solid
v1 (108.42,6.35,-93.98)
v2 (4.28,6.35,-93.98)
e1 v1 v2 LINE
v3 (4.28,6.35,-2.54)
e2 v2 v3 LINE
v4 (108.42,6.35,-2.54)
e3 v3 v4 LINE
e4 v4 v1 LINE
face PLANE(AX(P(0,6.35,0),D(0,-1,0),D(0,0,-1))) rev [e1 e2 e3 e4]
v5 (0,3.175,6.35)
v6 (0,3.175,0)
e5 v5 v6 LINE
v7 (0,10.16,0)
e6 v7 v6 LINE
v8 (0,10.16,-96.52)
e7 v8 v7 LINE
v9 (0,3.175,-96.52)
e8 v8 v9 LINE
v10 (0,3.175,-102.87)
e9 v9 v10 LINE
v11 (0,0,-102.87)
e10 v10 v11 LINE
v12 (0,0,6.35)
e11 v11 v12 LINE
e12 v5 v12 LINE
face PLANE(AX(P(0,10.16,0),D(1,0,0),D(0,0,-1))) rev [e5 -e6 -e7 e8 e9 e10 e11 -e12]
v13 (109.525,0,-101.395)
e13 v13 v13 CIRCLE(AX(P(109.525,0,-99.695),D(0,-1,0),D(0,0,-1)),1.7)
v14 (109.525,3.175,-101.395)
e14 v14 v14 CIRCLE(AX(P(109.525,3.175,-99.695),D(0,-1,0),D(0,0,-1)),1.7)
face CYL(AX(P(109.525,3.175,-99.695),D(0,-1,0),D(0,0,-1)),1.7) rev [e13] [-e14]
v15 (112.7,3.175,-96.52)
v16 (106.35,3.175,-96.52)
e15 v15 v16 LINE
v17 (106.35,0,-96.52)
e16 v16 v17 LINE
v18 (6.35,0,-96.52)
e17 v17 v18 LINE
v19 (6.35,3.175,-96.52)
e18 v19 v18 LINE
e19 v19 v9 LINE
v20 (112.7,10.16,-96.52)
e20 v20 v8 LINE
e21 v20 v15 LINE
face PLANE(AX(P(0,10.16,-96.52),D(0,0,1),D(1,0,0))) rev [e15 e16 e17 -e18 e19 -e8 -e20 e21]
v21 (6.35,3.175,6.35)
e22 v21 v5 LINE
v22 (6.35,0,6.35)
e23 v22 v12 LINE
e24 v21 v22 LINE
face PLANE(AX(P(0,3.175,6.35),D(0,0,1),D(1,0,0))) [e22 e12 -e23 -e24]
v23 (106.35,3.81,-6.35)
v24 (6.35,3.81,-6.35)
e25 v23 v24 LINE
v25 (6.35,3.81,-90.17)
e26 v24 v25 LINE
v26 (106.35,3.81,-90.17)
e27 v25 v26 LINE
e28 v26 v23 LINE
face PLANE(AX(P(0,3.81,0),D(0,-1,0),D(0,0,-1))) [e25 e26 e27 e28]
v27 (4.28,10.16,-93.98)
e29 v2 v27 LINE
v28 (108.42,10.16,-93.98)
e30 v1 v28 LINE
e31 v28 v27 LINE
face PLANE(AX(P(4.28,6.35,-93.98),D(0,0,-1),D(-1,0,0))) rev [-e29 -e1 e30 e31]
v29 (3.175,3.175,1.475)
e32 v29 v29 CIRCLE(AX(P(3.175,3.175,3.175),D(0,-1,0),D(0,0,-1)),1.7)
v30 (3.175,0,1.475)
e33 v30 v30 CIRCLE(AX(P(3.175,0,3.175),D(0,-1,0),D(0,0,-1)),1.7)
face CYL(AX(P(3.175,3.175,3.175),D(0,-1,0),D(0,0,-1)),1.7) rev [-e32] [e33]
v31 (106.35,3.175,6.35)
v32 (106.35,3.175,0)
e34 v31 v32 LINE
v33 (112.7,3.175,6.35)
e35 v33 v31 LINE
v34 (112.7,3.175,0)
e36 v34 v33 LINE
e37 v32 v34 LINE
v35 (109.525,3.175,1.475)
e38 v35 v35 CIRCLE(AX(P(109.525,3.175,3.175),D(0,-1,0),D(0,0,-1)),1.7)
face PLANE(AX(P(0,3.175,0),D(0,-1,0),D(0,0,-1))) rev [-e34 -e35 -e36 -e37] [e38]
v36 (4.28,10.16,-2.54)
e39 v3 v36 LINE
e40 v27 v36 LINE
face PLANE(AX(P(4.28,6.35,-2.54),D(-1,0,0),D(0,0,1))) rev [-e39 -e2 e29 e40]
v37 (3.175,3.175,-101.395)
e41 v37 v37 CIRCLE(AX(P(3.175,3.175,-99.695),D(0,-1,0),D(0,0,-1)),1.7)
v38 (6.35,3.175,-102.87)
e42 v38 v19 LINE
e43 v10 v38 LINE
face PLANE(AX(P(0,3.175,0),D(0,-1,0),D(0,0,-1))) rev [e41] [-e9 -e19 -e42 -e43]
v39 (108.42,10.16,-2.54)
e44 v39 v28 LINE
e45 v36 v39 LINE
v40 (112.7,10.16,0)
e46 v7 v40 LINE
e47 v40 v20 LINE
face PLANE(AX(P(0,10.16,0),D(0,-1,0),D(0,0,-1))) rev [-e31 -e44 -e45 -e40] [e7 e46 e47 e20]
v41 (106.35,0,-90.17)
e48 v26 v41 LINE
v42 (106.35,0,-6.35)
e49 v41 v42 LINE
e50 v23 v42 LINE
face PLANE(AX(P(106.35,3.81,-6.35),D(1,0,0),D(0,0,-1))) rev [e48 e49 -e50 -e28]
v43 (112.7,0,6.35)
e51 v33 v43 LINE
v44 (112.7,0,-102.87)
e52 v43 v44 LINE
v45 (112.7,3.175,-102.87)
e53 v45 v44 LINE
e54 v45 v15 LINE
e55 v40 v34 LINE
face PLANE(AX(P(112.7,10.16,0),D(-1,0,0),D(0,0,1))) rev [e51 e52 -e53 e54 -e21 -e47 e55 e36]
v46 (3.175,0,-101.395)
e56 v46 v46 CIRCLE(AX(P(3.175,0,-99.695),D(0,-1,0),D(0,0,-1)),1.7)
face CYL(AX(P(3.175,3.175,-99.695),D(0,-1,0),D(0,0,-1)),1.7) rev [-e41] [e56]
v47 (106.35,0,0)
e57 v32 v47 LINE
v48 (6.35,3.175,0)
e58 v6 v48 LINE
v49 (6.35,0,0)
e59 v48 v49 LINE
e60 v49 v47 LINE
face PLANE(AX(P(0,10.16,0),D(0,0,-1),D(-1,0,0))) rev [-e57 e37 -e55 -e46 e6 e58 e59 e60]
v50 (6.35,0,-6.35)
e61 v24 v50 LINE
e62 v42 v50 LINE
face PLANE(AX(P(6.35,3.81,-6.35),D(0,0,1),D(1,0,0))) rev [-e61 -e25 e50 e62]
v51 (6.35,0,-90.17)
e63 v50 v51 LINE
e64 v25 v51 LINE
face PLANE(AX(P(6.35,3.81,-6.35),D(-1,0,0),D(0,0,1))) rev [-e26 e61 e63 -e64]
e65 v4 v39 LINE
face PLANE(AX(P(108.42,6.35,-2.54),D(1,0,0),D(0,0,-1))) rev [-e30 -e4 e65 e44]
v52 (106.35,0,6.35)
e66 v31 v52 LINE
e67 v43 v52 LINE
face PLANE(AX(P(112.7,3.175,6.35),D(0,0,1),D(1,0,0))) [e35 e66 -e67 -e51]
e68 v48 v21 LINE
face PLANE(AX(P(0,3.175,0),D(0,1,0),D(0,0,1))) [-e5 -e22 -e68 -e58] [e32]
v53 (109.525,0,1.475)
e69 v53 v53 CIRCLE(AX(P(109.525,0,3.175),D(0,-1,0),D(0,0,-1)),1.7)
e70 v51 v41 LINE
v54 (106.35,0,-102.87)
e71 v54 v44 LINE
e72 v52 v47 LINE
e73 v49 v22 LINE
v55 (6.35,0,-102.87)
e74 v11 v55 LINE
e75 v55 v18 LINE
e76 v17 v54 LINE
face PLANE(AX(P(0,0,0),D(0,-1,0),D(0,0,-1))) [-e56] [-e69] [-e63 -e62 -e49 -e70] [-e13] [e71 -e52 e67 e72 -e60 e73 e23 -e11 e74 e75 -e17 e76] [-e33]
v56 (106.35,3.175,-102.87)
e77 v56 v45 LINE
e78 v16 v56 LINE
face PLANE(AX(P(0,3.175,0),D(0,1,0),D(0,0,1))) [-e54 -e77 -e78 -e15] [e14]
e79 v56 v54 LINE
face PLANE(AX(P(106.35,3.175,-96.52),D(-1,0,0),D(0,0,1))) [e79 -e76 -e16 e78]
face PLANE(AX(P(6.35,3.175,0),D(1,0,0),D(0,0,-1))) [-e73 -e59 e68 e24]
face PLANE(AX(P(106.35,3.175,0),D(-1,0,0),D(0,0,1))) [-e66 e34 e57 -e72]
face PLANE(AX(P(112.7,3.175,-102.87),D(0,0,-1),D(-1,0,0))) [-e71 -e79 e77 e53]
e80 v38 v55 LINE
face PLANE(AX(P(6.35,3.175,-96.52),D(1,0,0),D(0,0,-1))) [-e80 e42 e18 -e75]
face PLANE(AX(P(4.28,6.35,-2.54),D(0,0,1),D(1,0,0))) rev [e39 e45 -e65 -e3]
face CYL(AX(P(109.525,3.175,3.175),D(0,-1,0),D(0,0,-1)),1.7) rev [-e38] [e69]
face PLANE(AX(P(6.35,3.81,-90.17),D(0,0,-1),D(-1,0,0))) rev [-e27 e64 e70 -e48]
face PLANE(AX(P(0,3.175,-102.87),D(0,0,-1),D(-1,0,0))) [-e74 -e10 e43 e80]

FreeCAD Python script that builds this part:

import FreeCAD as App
import Part
import Sketcher

V = App.Vector
Q = App.Units.Quantity


def add_polygon(sketch, points):
    """Adds a closed chain of lines whose ends are joined by coincident constraints."""
    first, n = sketch.GeometryCount, len(points)
    for a, b in zip(points, points[1:] + points[:1]):
        sketch.addGeometry(Part.LineSegment(App.Vector(*a, 0), App.Vector(*b, 0)), False)
    for i in range(n):
        sketch.addConstraint(Sketcher.Constraint("Coincident", first + i, 2, first + (i + 1) % n, 1))

doc = App.newDocument("Part")
body = doc.addObject("PartDesign::Body", "Body")

# Sketch on XZ plane
sketch1 = doc.addObject("Sketcher::SketchObject", "Sketch")
body.addObject(sketch1)
sketch1.AttachmentSupport = (doc.XZ_Plane, [""])
sketch1.MapMode = "FlatFace"
add_polygon(sketch1, [(0, -96.52), (0, 0), (112.7, 0), (112.7, -96.52)])  # lines 0-3
sketch1.addConstraint(Sketcher.Constraint("Vertical", 0))
sketch1.addConstraint(Sketcher.Constraint("Horizontal", 1))
sketch1.addConstraint(Sketcher.Constraint("Vertical", 2))
sketch1.addConstraint(Sketcher.Constraint("Horizontal", 3))
sketch1.addConstraint(Sketcher.Constraint("Coincident", 0, 2, -1, 1))
sketch1.addConstraint(Sketcher.Constraint("DistanceY", 0, 1, 0, 2, Q("3.8 in")))
sketch1.addConstraint(Sketcher.Constraint("DistanceX", 1, 1, 1, 2, Q("112.7 mm")))
pad1 = doc.addObject("PartDesign::Pad", "Pad")
body.addObject(pad1)
pad1.Profile = sketch1
pad1.Length = Q("0.4 in")
pad1.Reversed = True

# Sketch on XZ plane
sketch2 = doc.addObject("Sketcher::SketchObject", "Sketch001")
body.addObject(sketch2)
sketch2.AttachmentSupport = (doc.XZ_Plane, [""])
sketch2.MapMode = "FlatFace"
sketch2.AttachmentOffset = App.Placement(V(0, 0, -0.4 * 25.4), App.Rotation())
add_polygon(sketch2, [(4.28, -93.98), (4.28, -2.54), (108.42, -2.54), (108.42, -93.98)])  # lines 0-3
sketch2.addConstraint(Sketcher.Constraint("Vertical", 0))
sketch2.addConstraint(Sketcher.Constraint("Horizontal", 1))
sketch2.addConstraint(Sketcher.Constraint("Vertical", 2))
sketch2.addConstraint(Sketcher.Constraint("Horizontal", 3))
sketch2.addConstraint(Sketcher.Constraint("DistanceX", 1, 1, 1, 2, Q("4.1 in")))
sketch2.addConstraint(Sketcher.Constraint("DistanceY", 0, 1, 0, 2, Q("3.6 in")))
sketch2.addConstraint(Sketcher.Constraint("DistanceY", 0, 2, -1, 1, Q("0.1 in")))
sketch2.addConstraint(Sketcher.Constraint("DistanceX", -1, 1, 0, 2, Q("4.28 mm")))
pocket1 = doc.addObject("PartDesign::Pocket", "Pocket")
body.addObject(pocket1)
pocket1.Profile = sketch2
pocket1.Length = Q("0.15 in")
pocket1.Reversed = True

# Sketch on XZ plane
sketch3 = doc.addObject("Sketcher::SketchObject", "Sketch002")
body.addObject(sketch3)
sketch3.AttachmentSupport = (doc.XZ_Plane, [""])
sketch3.MapMode = "FlatFace"
add_polygon(sketch3, [(106.35, 6.35), (106.35, 0), (112.7, 0), (112.7, 6.35)])  # lines 0-3
sketch3.addGeometry(Part.Circle(V(109.525, 3.175, 0), V(0, 0, 1), 1.7), False)  # 4
add_polygon(sketch3, [(0, 6.35), (0, 0), (6.35, 0), (6.35, 6.35)])  # lines 5-8
sketch3.addGeometry(Part.Circle(V(3.175, 3.175, 0), V(0, 0, 1), 1.7), False)  # 9
add_polygon(sketch3, [(0, -96.52), (0, -102.87), (6.35, -102.87), (6.35, -96.52)])  # lines 10-13
sketch3.addGeometry(Part.Circle(V(3.175, -99.695, 0), V(0, 0, 1), 1.7), False)  # 14
add_polygon(sketch3, [(106.35, -96.52), (106.35, -102.87), (112.7, -102.87), (112.7, -96.52)])  # lines 15-18
sketch3.addGeometry(Part.Circle(V(109.525, -99.695, 0), V(0, 0, 1), 1.7), False)  # 19
sketch3.addConstraint(Sketcher.Constraint("Vertical", 0))
sketch3.addConstraint(Sketcher.Constraint("Horizontal", 1))
sketch3.addConstraint(Sketcher.Constraint("Vertical", 2))
sketch3.addConstraint(Sketcher.Constraint("Horizontal", 3))
sketch3.addConstraint(Sketcher.Constraint("Vertical", 5))
sketch3.addConstraint(Sketcher.Constraint("Horizontal", 6))
sketch3.addConstraint(Sketcher.Constraint("Vertical", 7))
sketch3.addConstraint(Sketcher.Constraint("Horizontal", 8))
sketch3.addConstraint(Sketcher.Constraint("Vertical", 10))
sketch3.addConstraint(Sketcher.Constraint("Horizontal", 11))
sketch3.addConstraint(Sketcher.Constraint("Vertical", 12))
sketch3.addConstraint(Sketcher.Constraint("Horizontal", 13))
sketch3.addConstraint(Sketcher.Constraint("Vertical", 15))
sketch3.addConstraint(Sketcher.Constraint("Horizontal", 16))
sketch3.addConstraint(Sketcher.Constraint("Vertical", 17))
sketch3.addConstraint(Sketcher.Constraint("Horizontal", 18))
sketch3.addConstraint(Sketcher.Constraint("Coincident", 5, 2, -1, 1))
sketch3.addConstraint(Sketcher.Constraint("Equal", 4, 9))
sketch3.addConstraint(Sketcher.Constraint("Equal", 9, 14))
sketch3.addConstraint(Sketcher.Constraint("Equal", 14, 19))
sketch3.addConstraint(Sketcher.Constraint("PointOnObject", 0, 2, -1))
sketch3.addConstraint(Sketcher.Constraint("PointOnObject", 10, 2, -2))
sketch3.addConstraint(Sketcher.Constraint("Horizontal", 4, 3, 9, 3))
sketch3.addConstraint(Sketcher.Constraint("Horizontal", 14, 3, 19, 3))
sketch3.addConstraint(Sketcher.Constraint("Horizontal", 3, 2, 7, 2))
sketch3.addConstraint(Sketcher.Constraint("Horizontal", 11, 2, 15, 2))
sketch3.addConstraint(Sketcher.Constraint("Horizontal", 13, 2, 17, 2))
sketch3.addConstraint(Sketcher.Constraint("Vertical", 9, 3, 14, 3))
sketch3.addConstraint(Sketcher.Constraint("Vertical", 4, 3, 19, 3))
sketch3.addConstraint(Sketcher.Constraint("Vertical", 7, 2, 11, 2))
sketch3.addConstraint(Sketcher.Constraint("Vertical", 3, 2, 15, 2))
sketch3.addConstraint(Sketcher.Constraint("Vertical", 2, 2, 16, 2))
sketch3.addConstraint(Sketcher.Constraint("Equal", 3, 6))
sketch3.addConstraint(Sketcher.Constraint("Equal", 18, 0))
sketch3.addConstraint(Sketcher.Constraint("Equal", 7, 10))
sketch3.addConstraint(Sketcher.Constraint("DistanceX", 1, 1, 1, 2, Q("0.25 in")))
sketch3.addConstraint(Sketcher.Constraint("DistanceY", 12, 2, -1, 1, Q("3.8 in")))
sketch3.addConstraint(Sketcher.Constraint("Diameter", 4, Q("3.4 mm")))
sketch3.addConstraint(Sketcher.Constraint("DistanceY", 14, 3, 9, 3, Q("4.05 in")))
sketch3.addConstraint(Sketcher.Constraint("DistanceY", -1, 1, 4, 3, Q("0.125 in")))
sketch3.addConstraint(Sketcher.Constraint("DistanceX", -1, 1, 9, 3, Q("0.125 in")))
sketch3.addConstraint(Sketcher.Constraint("DistanceX", 0, 2, 4, 3, Q("0.125 in")))
sketch3.addConstraint(Sketcher.Constraint("DistanceX", -1, 1, 4, 3, Q("109.525 mm")))
pad2 = doc.addObject("PartDesign::Pad", "Pad001")
body.addObject(pad2)
pad2.Profile = sketch3
pad2.Length = Q("0.125 in")
pad2.Reversed = True

# Sketch on XZ plane
sketch4 = doc.addObject("Sketcher::SketchObject", "Sketch003")
body.addObject(sketch4)
sketch4.AttachmentSupport = (doc.XZ_Plane, [""])
sketch4.MapMode = "FlatFace"
add_polygon(sketch4, [(6.35, -6.35), (6.35, -90.17), (106.35, -90.17), (106.35, -6.35)])  # lines 0-3
sketch4.addConstraint(Sketcher.Constraint("Vertical", 0))
sketch4.addConstraint(Sketcher.Constraint("Horizontal", 1))
sketch4.addConstraint(Sketcher.Constraint("Vertical", 2))
sketch4.addConstraint(Sketcher.Constraint("Horizontal", 3))
sketch4.addConstraint(Sketcher.Constraint("DistanceY", 0, 2, 0, 1, Q("3.3 in")))
sketch4.addConstraint(Sketcher.Constraint("DistanceX", -1, 1, 0, 2, Q("0.25 in")))
sketch4.addConstraint(Sketcher.Constraint("DistanceY", 0, 2, -1, 1, Q("3.55 in")))
sketch4.addConstraint(Sketcher.Constraint("DistanceX", 1, 1, 1, 2, Q("100 mm")))
pocket2 = doc.addObject("PartDesign::Pocket", "Pocket001")
body.addObject(pocket2)
pocket2.Profile = sketch4
pocket2.Length = Q("0.15 in")

doc.recompute()
